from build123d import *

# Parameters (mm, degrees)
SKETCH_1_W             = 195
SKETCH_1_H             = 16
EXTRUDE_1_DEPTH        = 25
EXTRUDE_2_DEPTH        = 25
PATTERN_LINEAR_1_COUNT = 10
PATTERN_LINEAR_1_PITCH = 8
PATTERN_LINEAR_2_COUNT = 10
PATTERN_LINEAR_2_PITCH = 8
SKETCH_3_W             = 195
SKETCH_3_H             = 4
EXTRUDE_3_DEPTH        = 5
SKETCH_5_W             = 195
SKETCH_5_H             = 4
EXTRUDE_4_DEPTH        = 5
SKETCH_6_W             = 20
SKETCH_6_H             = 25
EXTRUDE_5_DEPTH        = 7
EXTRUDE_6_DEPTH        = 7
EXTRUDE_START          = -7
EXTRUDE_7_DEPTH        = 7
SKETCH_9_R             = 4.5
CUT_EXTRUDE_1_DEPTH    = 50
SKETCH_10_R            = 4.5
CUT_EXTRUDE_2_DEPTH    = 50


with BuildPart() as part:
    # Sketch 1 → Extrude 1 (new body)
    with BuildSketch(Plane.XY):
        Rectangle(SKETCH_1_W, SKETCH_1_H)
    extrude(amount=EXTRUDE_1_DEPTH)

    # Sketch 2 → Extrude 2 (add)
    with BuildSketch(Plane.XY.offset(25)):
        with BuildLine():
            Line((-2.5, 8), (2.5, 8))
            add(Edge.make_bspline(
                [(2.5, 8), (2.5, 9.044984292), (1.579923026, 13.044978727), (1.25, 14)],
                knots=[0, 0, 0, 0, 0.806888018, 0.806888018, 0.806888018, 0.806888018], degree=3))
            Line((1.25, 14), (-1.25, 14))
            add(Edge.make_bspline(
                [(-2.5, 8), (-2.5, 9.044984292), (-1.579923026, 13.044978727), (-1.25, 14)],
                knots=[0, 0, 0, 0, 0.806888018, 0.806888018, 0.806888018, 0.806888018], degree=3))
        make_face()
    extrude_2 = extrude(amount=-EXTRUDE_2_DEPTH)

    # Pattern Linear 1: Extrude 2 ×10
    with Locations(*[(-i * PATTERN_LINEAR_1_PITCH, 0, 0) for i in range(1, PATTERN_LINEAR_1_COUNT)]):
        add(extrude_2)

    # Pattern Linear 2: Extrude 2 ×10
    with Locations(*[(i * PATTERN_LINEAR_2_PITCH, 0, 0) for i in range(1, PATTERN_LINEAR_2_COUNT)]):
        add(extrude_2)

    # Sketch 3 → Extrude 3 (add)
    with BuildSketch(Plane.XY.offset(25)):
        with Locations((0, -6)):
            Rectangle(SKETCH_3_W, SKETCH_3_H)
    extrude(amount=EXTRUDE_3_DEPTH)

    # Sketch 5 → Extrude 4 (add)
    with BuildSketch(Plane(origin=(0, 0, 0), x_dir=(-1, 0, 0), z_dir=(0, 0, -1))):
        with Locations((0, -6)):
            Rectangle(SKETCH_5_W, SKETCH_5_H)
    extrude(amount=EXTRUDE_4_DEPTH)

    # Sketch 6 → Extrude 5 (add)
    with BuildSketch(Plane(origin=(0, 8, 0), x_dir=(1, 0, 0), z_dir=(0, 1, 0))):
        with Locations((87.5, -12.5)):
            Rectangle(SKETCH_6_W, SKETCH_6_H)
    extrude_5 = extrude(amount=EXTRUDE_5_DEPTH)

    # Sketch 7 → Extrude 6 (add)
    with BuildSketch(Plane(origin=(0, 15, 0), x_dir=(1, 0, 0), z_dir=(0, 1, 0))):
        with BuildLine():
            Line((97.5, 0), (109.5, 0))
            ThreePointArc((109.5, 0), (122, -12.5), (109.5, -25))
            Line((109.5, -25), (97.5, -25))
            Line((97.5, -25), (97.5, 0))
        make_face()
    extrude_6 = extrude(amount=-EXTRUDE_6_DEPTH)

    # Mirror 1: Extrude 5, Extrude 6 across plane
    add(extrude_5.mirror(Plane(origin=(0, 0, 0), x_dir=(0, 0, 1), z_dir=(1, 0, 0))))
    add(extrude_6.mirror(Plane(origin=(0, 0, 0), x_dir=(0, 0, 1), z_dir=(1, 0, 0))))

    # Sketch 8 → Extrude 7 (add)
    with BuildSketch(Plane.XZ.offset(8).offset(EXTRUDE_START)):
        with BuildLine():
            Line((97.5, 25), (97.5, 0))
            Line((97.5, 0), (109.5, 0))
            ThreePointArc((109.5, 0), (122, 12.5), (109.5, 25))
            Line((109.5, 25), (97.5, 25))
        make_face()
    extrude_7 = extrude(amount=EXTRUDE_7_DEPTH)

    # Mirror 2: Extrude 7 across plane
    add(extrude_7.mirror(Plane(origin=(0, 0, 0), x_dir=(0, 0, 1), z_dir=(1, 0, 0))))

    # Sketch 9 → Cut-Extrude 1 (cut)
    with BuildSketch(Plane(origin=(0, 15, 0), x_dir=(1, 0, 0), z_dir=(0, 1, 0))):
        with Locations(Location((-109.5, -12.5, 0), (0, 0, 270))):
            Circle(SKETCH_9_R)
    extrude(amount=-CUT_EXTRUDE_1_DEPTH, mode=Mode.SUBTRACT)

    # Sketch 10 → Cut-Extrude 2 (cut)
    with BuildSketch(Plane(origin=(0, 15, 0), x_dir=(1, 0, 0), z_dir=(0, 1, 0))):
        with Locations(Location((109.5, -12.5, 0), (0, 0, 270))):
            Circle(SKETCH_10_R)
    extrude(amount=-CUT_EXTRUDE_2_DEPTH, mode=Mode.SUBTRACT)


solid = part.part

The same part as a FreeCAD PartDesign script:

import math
import FreeCAD as App
import Part
import Sketcher

doc = App.newDocument("Part")
body = doc.addObject("PartDesign::Body", "Body")

# Sketch on XY plane
sketch1 = doc.addObject("Sketcher::SketchObject", "Sketch")
body.addObject(sketch1)
sketch1.AttachmentSupport = (doc.XY_Plane, [""])
sketch1.MapMode = "FlatFace"
sketch1.addGeometry(Part.LineSegment(App.Vector(-98, 8, 0), App.Vector(-98, -8, 0)), False)
sketch1.addGeometry(Part.LineSegment(App.Vector(-98, -8, 0), App.Vector(98, -8, 0)), False)
sketch1.addGeometry(Part.LineSegment(App.Vector(98, -8, 0), App.Vector(98, 8, 0)), False)
sketch1.addGeometry(Part.LineSegment(App.Vector(98, 8, 0), App.Vector(-98, 8, 0)), False)
sketch1.addConstraint(Sketcher.Constraint("Coincident", 0, 2, 1, 1))
sketch1.addConstraint(Sketcher.Constraint("Coincident", 1, 2, 2, 1))
sketch1.addConstraint(Sketcher.Constraint("Coincident", 2, 2, 3, 1))
sketch1.addConstraint(Sketcher.Constraint("Coincident", 3, 2, 0, 1))
sketch1.addConstraint(Sketcher.Constraint("Vertical", 0))
sketch1.addConstraint(Sketcher.Constraint("Horizontal", 1))
sketch1.addConstraint(Sketcher.Constraint("Vertical", 2))
sketch1.addConstraint(Sketcher.Constraint("Horizontal", 3))
sketch1.addConstraint(Sketcher.Constraint("Symmetric", 0, 2, 2, 2, -1, 1))
sketch1.addConstraint(Sketcher.Constraint("DistanceX", 1, 1, 1, 2, 195.0))
sketch1.addConstraint(Sketcher.Constraint("DistanceY", 0, 2, 0, 1, 16.0))
pad1 = doc.addObject("PartDesign::Pad", "Pad")
body.addObject(pad1)
pad1.Profile = sketch1
pad1.Length = 25

# Sketch on XY plane
sketch2 = doc.addObject("Sketcher::SketchObject", "Sketch001")
body.addObject(sketch2)
sketch2.AttachmentSupport = (doc.XY_Plane, [""])
sketch2.MapMode = "FlatFace"
sketch2.AttachmentOffset = App.Placement(App.Vector(0, 0, 25), App.Rotation())
sketch2.addGeometry(Part.LineSegment(App.Vector(-2.5, 8, 0), App.Vector(2.5, 8, 0)), False)
sketch2.addGeometry(Part.BSplineCurve([App.Vector(2.5, 8, 0), App.Vector(2.5, 9.044984, 0), App.Vector(1.579923, 13.044979, 0), App.Vector(1.25, 14, 0)], [4, 4], [0, 0.806888018], False, 3, [1, 1, 1, 1], False), False)
sketch2.addGeometry(Part.LineSegment(App.Vector(1.25, 14, 0), App.Vector(-1.25, 14, 0)), False)
sketch2.addGeometry(Part.BSplineCurve([App.Vector(-2.5, 8, 0), App.Vector(-2.5, 9.044984, 0), App.Vector(-1.579923, 13.044979, 0), App.Vector(-1.25, 14, 0)], [4, 4], [0, 0.806888018], False, 3, [1, 1, 1, 1], False), False)
sketch2.addConstraint(Sketcher.Constraint("Block", 1))
sketch2.addConstraint(Sketcher.Constraint("Block", 3))
sketch2.addConstraint(Sketcher.Constraint("Coincident", 0, 2, 1, 1))
sketch2.addConstraint(Sketcher.Constraint("Coincident", 1, 2, 2, 1))
sketch2.addConstraint(Sketcher.Constraint("Coincident", 2, 2, 3, 2))
sketch2.addConstraint(Sketcher.Constraint("Coincident", 3, 1, 0, 1))
pad2 = doc.addObject("PartDesign::Pad", "Pad001")
body.addObject(pad2)
pad2.Profile = sketch2
pad2.Length = 25
pad2.Reversed = True
doc.recompute()

linearpattern = doc.addObject("PartDesign::LinearPattern", "LinearPattern")
body.addObject(linearpattern)
linearpattern.Originals = [pad2]
linearpattern.Direction = (doc.X_Axis, [""])
linearpattern.Mode = "offset"
linearpattern.Offset = 8
linearpattern.Occurrences = 10
linearpattern.Reversed = True
body.Tip = linearpattern
doc.recompute()

linearpattern2 = doc.addObject("PartDesign::LinearPattern", "LinearPattern001")
body.addObject(linearpattern2)
linearpattern2.Originals = [pad2]
linearpattern2.Direction = (doc.X_Axis, [""])
linearpattern2.Mode = "offset"
linearpattern2.Offset = 8
linearpattern2.Occurrences = 10
body.Tip = linearpattern2

# Sketch on XY plane
sketch3 = doc.addObject("Sketcher::SketchObject", "Sketch002")
body.addObject(sketch3)
sketch3.AttachmentSupport = (doc.XY_Plane, [""])
sketch3.MapMode = "FlatFace"
sketch3.AttachmentOffset = App.Placement(App.Vector(0, 0, 25), App.Rotation())
sketch3.addGeometry(Part.LineSegment(App.Vector(-97.5, -4, 0), App.Vector(-97.5, -8, 0)), False)
sketch3.addGeometry(Part.LineSegment(App.Vector(-97.5, -8, 0), App.Vector(97.5, -8, 0)), False)
sketch3.addGeometry(Part.LineSegment(App.Vector(97.5, -8, 0), App.Vector(97.5, -4, 0)), False)
sketch3.addGeometry(Part.LineSegment(App.Vector(97.5, -4, 0), App.Vector(-97.5, -4, 0)), False)
sketch3.addConstraint(Sketcher.Constraint("Coincident", 0, 2, 1, 1))
sketch3.addConstraint(Sketcher.Constraint("Coincident", 1, 2, 2, 1))
sketch3.addConstraint(Sketcher.Constraint("Coincident", 2, 2, 3, 1))
sketch3.addConstraint(Sketcher.Constraint("Coincident", 3, 2, 0, 1))
sketch3.addConstraint(Sketcher.Constraint("Vertical", 0))
sketch3.addConstraint(Sketcher.Constraint("Horizontal", 1))
sketch3.addConstraint(Sketcher.Constraint("Vertical", 2))
sketch3.addConstraint(Sketcher.Constraint("Horizontal", 3))
sketch3.addConstraint(Sketcher.Constraint("DistanceX", 1, 1, 1, 2, 195.0))
sketch3.addConstraint(Sketcher.Constraint("DistanceY", 0, 2, 0, 1, 4.0))
sketch3.addConstraint(Sketcher.Constraint("DistanceY", 0, 2, -1, 1, 8.0))
sketch3.addConstraint(Sketcher.Constraint("DistanceX", 0, 2, -1, 1, 97.5))
pad3 = doc.addObject("PartDesign::Pad", "Pad002")
body.addObject(pad3)
pad3.Profile = sketch3
pad3.Length = 5

# Sketch on XY plane
sketch4 = doc.addObject("Sketcher::SketchObject", "Sketch003")
body.addObject(sketch4)
sketch4.AttachmentSupport = (doc.XY_Plane, [""])
sketch4.MapMode = "FlatFace"
sketch4.addGeometry(Part.LineSegment(App.Vector(97.5, -4, 0), App.Vector(97.5, -8, 0)), False)
sketch4.addGeometry(Part.LineSegment(App.Vector(97.5, -8, 0), App.Vector(-97.5, -8, 0)), False)
sketch4.addGeometry(Part.LineSegment(App.Vector(-97.5, -8, 0), App.Vector(-97.5, -4, 0)), False)
sketch4.addGeometry(Part.LineSegment(App.Vector(-97.5, -4, 0), App.Vector(97.5, -4, 0)), False)
sketch4.addConstraint(Sketcher.Constraint("Coincident", 0, 2, 1, 1))
sketch4.addConstraint(Sketcher.Constraint("Coincident", 1, 2, 2, 1))
sketch4.addConstraint(Sketcher.Constraint("Coincident", 2, 2, 3, 1))
sketch4.addConstraint(Sketcher.Constraint("Coincident", 3, 2, 0, 1))
sketch4.addConstraint(Sketcher.Constraint("Vertical", 0))
sketch4.addConstraint(Sketcher.Constraint("Horizontal", 1))
sketch4.addConstraint(Sketcher.Constraint("Vertical", 2))
sketch4.addConstraint(Sketcher.Constraint("Horizontal", 3))
sketch4.addConstraint(Sketcher.Constraint("DistanceX", 1, 2, 1, 1, 195.0))
sketch4.addConstraint(Sketcher.Constraint("DistanceY", 0, 2, 0, 1, 4.0))
sketch4.addConstraint(Sketcher.Constraint("DistanceY", 0, 2, -1, 1, 8.0))
sketch4.addConstraint(Sketcher.Constraint("DistanceX", -1, 1, 0, 2, 97.5))
pad4 = doc.addObject("PartDesign::Pad", "Pad003")
body.addObject(pad4)
pad4.Profile = sketch4
pad4.Length = 5
pad4.Reversed = True

# Sketch on XZ plane
sketch5 = doc.addObject("Sketcher::SketchObject", "Sketch004")
body.addObject(sketch5)
sketch5.AttachmentSupport = (doc.XZ_Plane, [""])
sketch5.MapMode = "FlatFace"
sketch5.AttachmentOffset = App.Placement(App.Vector(0, 0, -8), App.Rotation())
sketch5.addGeometry(Part.LineSegment(App.Vector(78, 0, 0), App.Vector(78, 25, 0)), False)
sketch5.addGeometry(Part.LineSegment(App.Vector(78, 25, 0), App.Vector(98, 25, 0)), False)
sketch5.addGeometry(Part.LineSegment(App.Vector(98, 25, 0), App.Vector(98, 0, 0)), False)
sketch5.addGeometry(Part.LineSegment(App.Vector(98, 0, 0), App.Vector(78, 0, 0)), False)
sketch5.addConstraint(Sketcher.Constraint("Coincident", 0, 2, 1, 1))
sketch5.addConstraint(Sketcher.Constraint("Coincident", 1, 2, 2, 1))
sketch5.addConstraint(Sketcher.Constraint("Coincident", 2, 2, 3, 1))
sketch5.addConstraint(Sketcher.Constraint("Coincident", 3, 2, 0, 1))
sketch5.addConstraint(Sketcher.Constraint("Vertical", 0))
sketch5.addConstraint(Sketcher.Constraint("Horizontal", 1))
sketch5.addConstraint(Sketcher.Constraint("Vertical", 2))
sketch5.addConstraint(Sketcher.Constraint("Horizontal", 3))
sketch5.addConstraint(Sketcher.Constraint("PointOnObject", 2, 2, -1))
sketch5.addConstraint(Sketcher.Constraint("DistanceX", 1, 1, 1, 2, 20.0))
sketch5.addConstraint(Sketcher.Constraint("DistanceY", 0, 1, 0, 2, 25.0))
sketch5.addConstraint(Sketcher.Constraint("DistanceX", -1, 1, 0, 2, 77.5))
pad5 = doc.addObject("PartDesign::Pad", "Pad004")
body.addObject(pad5)
pad5.Profile = sketch5
pad5.Length = 7
pad5.Reversed = True

# Sketch on XZ plane
sketch6 = doc.addObject("Sketcher::SketchObject", "Sketch005")
body.addObject(sketch6)
sketch6.AttachmentSupport = (doc.XZ_Plane, [""])
sketch6.MapMode = "FlatFace"
sketch6.AttachmentOffset = App.Placement(App.Vector(0, 0, -15), App.Rotation())
sketch6.addGeometry(Part.LineSegment(App.Vector(110, 0, 0), App.Vector(98, 0, 0)), False)
sketch6.addGeometry(Part.LineSegment(App.Vector(98, 0, 0), App.Vector(98, 25, 0)), False)
sketch6.addGeometry(Part.LineSegment(App.Vector(98, 25, 0), App.Vector(110, 25, 0)), False)
sketch6.addGeometry(Part.ArcOfCircle(Part.Circle(App.Vector(110, 12, 0), App.Vector(0, 0, 1), 12), math.radians(-90), math.radians(90)), False)
sketch6.addConstraint(Sketcher.Constraint("Coincident", 0, 2, 1, 1))
sketch6.addConstraint(Sketcher.Constraint("Coincident", 1, 2, 2, 1))
sketch6.addConstraint(Sketcher.Constraint("Tangent", 2, 2, 3, 2))
sketch6.addConstraint(Sketcher.Constraint("Tangent", 3, 1, 0, 1))
sketch6.addConstraint(Sketcher.Constraint("Horizontal", 0))
sketch6.addConstraint(Sketcher.Constraint("Vertical", 1))
sketch6.addConstraint(Sketcher.Constraint("Horizontal", 2))
sketch6.addConstraint(Sketcher.Constraint("PointOnObject", 0, 2, -1))
sketch6.addConstraint(Sketcher.Constraint("Radius", 3, 12.5))
sketch6.addConstraint(Sketcher.Constraint("DistanceX", 0, 2, 0, 1, 12.0))
sketch6.addConstraint(Sketcher.Constraint("DistanceX", -1, 1, 3, 3, 109.5))
pad6 = doc.addObject("PartDesign::Pad", "Pad005")
body.addObject(pad6)
pad6.Profile = sketch6
pad6.Length = 7
doc.recompute()

mirrored = doc.addObject("PartDesign::Mirrored", "Mirrored")
body.addObject(mirrored)
mirrored.Originals = [pad5, pad6]
mirrored.MirrorPlane = (doc.YZ_Plane, [""])
body.Tip = mirrored

# Sketch on XZ plane
sketch7 = doc.addObject("Sketcher::SketchObject", "Sketch006")
body.addObject(sketch7)
sketch7.AttachmentSupport = (doc.XZ_Plane, [""])
sketch7.MapMode = "FlatFace"
sketch7.AttachmentOffset = App.Placement(App.Vector(0, 0, 1), App.Rotation())
sketch7.addGeometry(Part.LineSegment(App.Vector(98, 25, 0), App.Vector(98, 0, 0)), False)
sketch7.addGeometry(Part.LineSegment(App.Vector(98, 0, 0), App.Vector(110, 0, 0)), False)
sketch7.addGeometry(Part.ArcOfCircle(Part.Circle(App.Vector(110, 12, 0), App.Vector(0, 0, 1), 12), math.radians(-90), math.radians(90)), False)
sketch7.addGeometry(Part.LineSegment(App.Vector(110, 25, 0), App.Vector(98, 25, 0)), False)
sketch7.addConstraint(Sketcher.Constraint("Coincident", 0, 2, 1, 1))
sketch7.addConstraint(Sketcher.Constraint("Tangent", 1, 2, 2, 1))
sketch7.addConstraint(Sketcher.Constraint("Tangent", 2, 2, 3, 1))
sketch7.addConstraint(Sketcher.Constraint("Coincident", 3, 2, 0, 1))
sketch7.addConstraint(Sketcher.Constraint("Vertical", 0))
sketch7.addConstraint(Sketcher.Constraint("Horizontal", 1))
sketch7.addConstraint(Sketcher.Constraint("Horizontal", 3))
sketch7.addConstraint(Sketcher.Constraint("PointOnObject", 0, 2, -1))
sketch7.addConstraint(Sketcher.Constraint("Radius", 2, 12.5))
sketch7.addConstraint(Sketcher.Constraint("DistanceX", 1, 1, 1, 2, 12.0))
sketch7.addConstraint(Sketcher.Constraint("DistanceX", -1, 1, 2, 3, 109.5))
pad7 = doc.addObject("PartDesign::Pad", "Pad006")
body.addObject(pad7)
pad7.Profile = sketch7
pad7.Length = 7
doc.recompute()

mirrored2 = doc.addObject("PartDesign::Mirrored", "Mirrored001")
body.addObject(mirrored2)
mirrored2.Originals = [pad7]
mirrored2.MirrorPlane = (doc.YZ_Plane, [""])
body.Tip = mirrored2

# Sketch on XZ plane
sketch8 = doc.addObject("Sketcher::SketchObject", "Sketch007")
body.addObject(sketch8)
sketch8.AttachmentSupport = (doc.XZ_Plane, [""])
sketch8.MapMode = "FlatFace"
sketch8.AttachmentOffset = App.Placement(App.Vector(0, 0, -15), App.Rotation())
sketch8.addGeometry(Part.Circle(App.Vector(-109.5, 12.5, 0), App.Vector(0, 0, 1), 4.5), False)
sketch8.addConstraint(Sketcher.Constraint("Diameter", 0, 9.0))
sketch8.addConstraint(Sketcher.Constraint("DistanceX", 0, 3, -1, 1, 109.5))
sketch8.addConstraint(Sketcher.Constraint("DistanceY", -1, 1, 0, 3, 12.5))
pocket1 = doc.addObject("PartDesign::Pocket", "Pocket")
body.addObject(pocket1)
pocket1.Profile = sketch8
pocket1.Length = 50
pocket1.Reversed = True

# Sketch on XZ plane
sketch9 = doc.addObject("Sketcher::SketchObject", "Sketch008")
body.addObject(sketch9)
sketch9.AttachmentSupport = (doc.XZ_Plane, [""])
sketch9.MapMode = "FlatFace"
sketch9.AttachmentOffset = App.Placement(App.Vector(0, 0, -15), App.Rotation())
sketch9.addGeometry(Part.Circle(App.Vector(109.5, 12.5, 0), App.Vector(0, 0, 1), 4.5), False)
sketch9.addConstraint(Sketcher.Constraint("Diameter", 0, 9.0))
sketch9.addConstraint(Sketcher.Constraint("DistanceX", -1, 1, 0, 3, 109.5))
sketch9.addConstraint(Sketcher.Constraint("DistanceY", -1, 1, 0, 3, 12.5))
pocket2 = doc.addObject("PartDesign::Pocket", "Pocket001")
body.addObject(pocket2)
pocket2.Profile = sketch9
pocket2.Length = 50
pocket2.Reversed = True

doc.recompute()
